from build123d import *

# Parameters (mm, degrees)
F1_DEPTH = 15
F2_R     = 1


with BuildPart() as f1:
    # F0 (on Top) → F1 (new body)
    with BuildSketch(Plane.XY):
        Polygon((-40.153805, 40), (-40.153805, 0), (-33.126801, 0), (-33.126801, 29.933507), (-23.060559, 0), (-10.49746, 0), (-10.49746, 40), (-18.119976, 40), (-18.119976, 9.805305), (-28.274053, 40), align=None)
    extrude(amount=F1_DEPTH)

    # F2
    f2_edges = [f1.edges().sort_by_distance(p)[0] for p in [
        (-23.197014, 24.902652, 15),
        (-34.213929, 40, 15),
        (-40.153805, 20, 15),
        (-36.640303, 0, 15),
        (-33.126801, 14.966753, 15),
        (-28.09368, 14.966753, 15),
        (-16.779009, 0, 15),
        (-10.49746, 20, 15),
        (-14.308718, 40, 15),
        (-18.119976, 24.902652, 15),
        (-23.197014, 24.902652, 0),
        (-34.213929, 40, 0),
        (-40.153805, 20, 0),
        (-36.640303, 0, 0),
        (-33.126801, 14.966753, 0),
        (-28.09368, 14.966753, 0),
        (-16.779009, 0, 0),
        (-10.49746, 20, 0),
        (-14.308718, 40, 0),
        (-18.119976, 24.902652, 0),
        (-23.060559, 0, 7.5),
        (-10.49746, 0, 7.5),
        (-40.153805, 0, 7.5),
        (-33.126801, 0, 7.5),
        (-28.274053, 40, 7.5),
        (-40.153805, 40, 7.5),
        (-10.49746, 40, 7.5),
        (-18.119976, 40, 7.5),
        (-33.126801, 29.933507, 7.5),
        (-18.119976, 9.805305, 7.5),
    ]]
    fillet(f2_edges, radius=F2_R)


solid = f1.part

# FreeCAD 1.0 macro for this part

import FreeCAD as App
import Part
import Sketcher

V = App.Vector

doc = App.newDocument("Part")
body = doc.addObject("PartDesign::Body", "Body")

# Sketch on XY plane
sketch1 = body.newObject("Sketcher::SketchObject", "Sketch")
sketch1.AttachmentSupport = (doc.getObject("XY_Plane"), [""])
sketch1.MapMode = "FlatFace"
sketch1.addGeometry([
    Part.LineSegment(V(-40.153805, 40, 0), V(-40.153805, 0, 0)),  # 0
    Part.LineSegment(V(-40.153805, 0, 0), V(-33.126801, 0, 0)),  # 1
    Part.LineSegment(V(-33.126801, 0, 0), V(-33.126801, 29.933507, 0)),  # 2
    Part.LineSegment(V(-33.126801, 29.933507, 0), V(-23.060559, 0, 0)),  # 3
    Part.LineSegment(V(-23.060559, 0, 0), V(-10.49746, 0, 0)),  # 4
    Part.LineSegment(V(-10.49746, 0, 0), V(-10.49746, 40, 0)),  # 5
    Part.LineSegment(V(-10.49746, 40, 0), V(-18.119976, 40, 0)),  # 6
    Part.LineSegment(V(-18.119976, 40, 0), V(-18.119976, 9.805305, 0)),  # 7
    Part.LineSegment(V(-18.119976, 9.805305, 0), V(-28.274053, 40, 0)),  # 8
    Part.LineSegment(V(-28.274053, 40, 0), V(-40.153805, 40, 0)),  # 9
], False)
sketch1.addConstraint([
    Sketcher.Constraint("Coincident", 0, 2, 1, 1),
    Sketcher.Constraint("Coincident", 1, 2, 2, 1),
    Sketcher.Constraint("Coincident", 2, 2, 3, 1),
    Sketcher.Constraint("Coincident", 3, 2, 4, 1),
    Sketcher.Constraint("Coincident", 4, 2, 5, 1),
    Sketcher.Constraint("Coincident", 5, 2, 6, 1),
    Sketcher.Constraint("Coincident", 6, 2, 7, 1),
    Sketcher.Constraint("Coincident", 7, 2, 8, 1),
    Sketcher.Constraint("Coincident", 8, 2, 9, 1),
    Sketcher.Constraint("Coincident", 9, 2, 0, 1),
    Sketcher.Constraint("Vertical", 0),
    Sketcher.Constraint("Horizontal", 1),
    Sketcher.Constraint("Vertical", 2),
    Sketcher.Constraint("Horizontal", 4),
    Sketcher.Constraint("Vertical", 5),
    Sketcher.Constraint("Horizontal", 6),
    Sketcher.Constraint("Vertical", 7),
    Sketcher.Constraint("Horizontal", 9),
    Sketcher.Constraint("PointOnObject", 0, 2, -1),
    Sketcher.Constraint("PointOnObject", 3, 2, -1),
    Sketcher.Constraint("DistanceY", 0, 2, 0, 1, 40.0),
    Sketcher.Constraint("DistanceY", 5, 1, 5, 2, 40.0),
    Sketcher.Constraint("DistanceX", 4, 1, 4, 2, 12.563099),
    Sketcher.Constraint("DistanceX", 1, 2, -1, 1, 33.126801),
    Sketcher.Constraint("DistanceY", 7, 2, 2, 2, 20.128202),
    Sketcher.Constraint("DistanceX", 1, 1, 1, 2, 7.027004),
    Sketcher.Constraint("DistanceX", 6, 2, 6, 1, 7.622516),
    Sketcher.Constraint("DistanceX", 9, 2, 9, 1, 11.879752),
    Sketcher.Constraint("DistanceY", 2, 1, 2, 2, 29.933507),
    Sketcher.Constraint("DistanceX", 3, 2, -1, 1, 23.060559),
])
pad1 = body.newObject("PartDesign::Pad", "Pad")
pad1.Profile = sketch1
pad1.Length = 15
doc.recompute()

fillet = body.newObject("PartDesign::Fillet", "Fillet")
fillet.Base = (pad1, ["Edge1"])
fillet.UseAllEdges = True
fillet.Radius = 1

doc.recompute()
